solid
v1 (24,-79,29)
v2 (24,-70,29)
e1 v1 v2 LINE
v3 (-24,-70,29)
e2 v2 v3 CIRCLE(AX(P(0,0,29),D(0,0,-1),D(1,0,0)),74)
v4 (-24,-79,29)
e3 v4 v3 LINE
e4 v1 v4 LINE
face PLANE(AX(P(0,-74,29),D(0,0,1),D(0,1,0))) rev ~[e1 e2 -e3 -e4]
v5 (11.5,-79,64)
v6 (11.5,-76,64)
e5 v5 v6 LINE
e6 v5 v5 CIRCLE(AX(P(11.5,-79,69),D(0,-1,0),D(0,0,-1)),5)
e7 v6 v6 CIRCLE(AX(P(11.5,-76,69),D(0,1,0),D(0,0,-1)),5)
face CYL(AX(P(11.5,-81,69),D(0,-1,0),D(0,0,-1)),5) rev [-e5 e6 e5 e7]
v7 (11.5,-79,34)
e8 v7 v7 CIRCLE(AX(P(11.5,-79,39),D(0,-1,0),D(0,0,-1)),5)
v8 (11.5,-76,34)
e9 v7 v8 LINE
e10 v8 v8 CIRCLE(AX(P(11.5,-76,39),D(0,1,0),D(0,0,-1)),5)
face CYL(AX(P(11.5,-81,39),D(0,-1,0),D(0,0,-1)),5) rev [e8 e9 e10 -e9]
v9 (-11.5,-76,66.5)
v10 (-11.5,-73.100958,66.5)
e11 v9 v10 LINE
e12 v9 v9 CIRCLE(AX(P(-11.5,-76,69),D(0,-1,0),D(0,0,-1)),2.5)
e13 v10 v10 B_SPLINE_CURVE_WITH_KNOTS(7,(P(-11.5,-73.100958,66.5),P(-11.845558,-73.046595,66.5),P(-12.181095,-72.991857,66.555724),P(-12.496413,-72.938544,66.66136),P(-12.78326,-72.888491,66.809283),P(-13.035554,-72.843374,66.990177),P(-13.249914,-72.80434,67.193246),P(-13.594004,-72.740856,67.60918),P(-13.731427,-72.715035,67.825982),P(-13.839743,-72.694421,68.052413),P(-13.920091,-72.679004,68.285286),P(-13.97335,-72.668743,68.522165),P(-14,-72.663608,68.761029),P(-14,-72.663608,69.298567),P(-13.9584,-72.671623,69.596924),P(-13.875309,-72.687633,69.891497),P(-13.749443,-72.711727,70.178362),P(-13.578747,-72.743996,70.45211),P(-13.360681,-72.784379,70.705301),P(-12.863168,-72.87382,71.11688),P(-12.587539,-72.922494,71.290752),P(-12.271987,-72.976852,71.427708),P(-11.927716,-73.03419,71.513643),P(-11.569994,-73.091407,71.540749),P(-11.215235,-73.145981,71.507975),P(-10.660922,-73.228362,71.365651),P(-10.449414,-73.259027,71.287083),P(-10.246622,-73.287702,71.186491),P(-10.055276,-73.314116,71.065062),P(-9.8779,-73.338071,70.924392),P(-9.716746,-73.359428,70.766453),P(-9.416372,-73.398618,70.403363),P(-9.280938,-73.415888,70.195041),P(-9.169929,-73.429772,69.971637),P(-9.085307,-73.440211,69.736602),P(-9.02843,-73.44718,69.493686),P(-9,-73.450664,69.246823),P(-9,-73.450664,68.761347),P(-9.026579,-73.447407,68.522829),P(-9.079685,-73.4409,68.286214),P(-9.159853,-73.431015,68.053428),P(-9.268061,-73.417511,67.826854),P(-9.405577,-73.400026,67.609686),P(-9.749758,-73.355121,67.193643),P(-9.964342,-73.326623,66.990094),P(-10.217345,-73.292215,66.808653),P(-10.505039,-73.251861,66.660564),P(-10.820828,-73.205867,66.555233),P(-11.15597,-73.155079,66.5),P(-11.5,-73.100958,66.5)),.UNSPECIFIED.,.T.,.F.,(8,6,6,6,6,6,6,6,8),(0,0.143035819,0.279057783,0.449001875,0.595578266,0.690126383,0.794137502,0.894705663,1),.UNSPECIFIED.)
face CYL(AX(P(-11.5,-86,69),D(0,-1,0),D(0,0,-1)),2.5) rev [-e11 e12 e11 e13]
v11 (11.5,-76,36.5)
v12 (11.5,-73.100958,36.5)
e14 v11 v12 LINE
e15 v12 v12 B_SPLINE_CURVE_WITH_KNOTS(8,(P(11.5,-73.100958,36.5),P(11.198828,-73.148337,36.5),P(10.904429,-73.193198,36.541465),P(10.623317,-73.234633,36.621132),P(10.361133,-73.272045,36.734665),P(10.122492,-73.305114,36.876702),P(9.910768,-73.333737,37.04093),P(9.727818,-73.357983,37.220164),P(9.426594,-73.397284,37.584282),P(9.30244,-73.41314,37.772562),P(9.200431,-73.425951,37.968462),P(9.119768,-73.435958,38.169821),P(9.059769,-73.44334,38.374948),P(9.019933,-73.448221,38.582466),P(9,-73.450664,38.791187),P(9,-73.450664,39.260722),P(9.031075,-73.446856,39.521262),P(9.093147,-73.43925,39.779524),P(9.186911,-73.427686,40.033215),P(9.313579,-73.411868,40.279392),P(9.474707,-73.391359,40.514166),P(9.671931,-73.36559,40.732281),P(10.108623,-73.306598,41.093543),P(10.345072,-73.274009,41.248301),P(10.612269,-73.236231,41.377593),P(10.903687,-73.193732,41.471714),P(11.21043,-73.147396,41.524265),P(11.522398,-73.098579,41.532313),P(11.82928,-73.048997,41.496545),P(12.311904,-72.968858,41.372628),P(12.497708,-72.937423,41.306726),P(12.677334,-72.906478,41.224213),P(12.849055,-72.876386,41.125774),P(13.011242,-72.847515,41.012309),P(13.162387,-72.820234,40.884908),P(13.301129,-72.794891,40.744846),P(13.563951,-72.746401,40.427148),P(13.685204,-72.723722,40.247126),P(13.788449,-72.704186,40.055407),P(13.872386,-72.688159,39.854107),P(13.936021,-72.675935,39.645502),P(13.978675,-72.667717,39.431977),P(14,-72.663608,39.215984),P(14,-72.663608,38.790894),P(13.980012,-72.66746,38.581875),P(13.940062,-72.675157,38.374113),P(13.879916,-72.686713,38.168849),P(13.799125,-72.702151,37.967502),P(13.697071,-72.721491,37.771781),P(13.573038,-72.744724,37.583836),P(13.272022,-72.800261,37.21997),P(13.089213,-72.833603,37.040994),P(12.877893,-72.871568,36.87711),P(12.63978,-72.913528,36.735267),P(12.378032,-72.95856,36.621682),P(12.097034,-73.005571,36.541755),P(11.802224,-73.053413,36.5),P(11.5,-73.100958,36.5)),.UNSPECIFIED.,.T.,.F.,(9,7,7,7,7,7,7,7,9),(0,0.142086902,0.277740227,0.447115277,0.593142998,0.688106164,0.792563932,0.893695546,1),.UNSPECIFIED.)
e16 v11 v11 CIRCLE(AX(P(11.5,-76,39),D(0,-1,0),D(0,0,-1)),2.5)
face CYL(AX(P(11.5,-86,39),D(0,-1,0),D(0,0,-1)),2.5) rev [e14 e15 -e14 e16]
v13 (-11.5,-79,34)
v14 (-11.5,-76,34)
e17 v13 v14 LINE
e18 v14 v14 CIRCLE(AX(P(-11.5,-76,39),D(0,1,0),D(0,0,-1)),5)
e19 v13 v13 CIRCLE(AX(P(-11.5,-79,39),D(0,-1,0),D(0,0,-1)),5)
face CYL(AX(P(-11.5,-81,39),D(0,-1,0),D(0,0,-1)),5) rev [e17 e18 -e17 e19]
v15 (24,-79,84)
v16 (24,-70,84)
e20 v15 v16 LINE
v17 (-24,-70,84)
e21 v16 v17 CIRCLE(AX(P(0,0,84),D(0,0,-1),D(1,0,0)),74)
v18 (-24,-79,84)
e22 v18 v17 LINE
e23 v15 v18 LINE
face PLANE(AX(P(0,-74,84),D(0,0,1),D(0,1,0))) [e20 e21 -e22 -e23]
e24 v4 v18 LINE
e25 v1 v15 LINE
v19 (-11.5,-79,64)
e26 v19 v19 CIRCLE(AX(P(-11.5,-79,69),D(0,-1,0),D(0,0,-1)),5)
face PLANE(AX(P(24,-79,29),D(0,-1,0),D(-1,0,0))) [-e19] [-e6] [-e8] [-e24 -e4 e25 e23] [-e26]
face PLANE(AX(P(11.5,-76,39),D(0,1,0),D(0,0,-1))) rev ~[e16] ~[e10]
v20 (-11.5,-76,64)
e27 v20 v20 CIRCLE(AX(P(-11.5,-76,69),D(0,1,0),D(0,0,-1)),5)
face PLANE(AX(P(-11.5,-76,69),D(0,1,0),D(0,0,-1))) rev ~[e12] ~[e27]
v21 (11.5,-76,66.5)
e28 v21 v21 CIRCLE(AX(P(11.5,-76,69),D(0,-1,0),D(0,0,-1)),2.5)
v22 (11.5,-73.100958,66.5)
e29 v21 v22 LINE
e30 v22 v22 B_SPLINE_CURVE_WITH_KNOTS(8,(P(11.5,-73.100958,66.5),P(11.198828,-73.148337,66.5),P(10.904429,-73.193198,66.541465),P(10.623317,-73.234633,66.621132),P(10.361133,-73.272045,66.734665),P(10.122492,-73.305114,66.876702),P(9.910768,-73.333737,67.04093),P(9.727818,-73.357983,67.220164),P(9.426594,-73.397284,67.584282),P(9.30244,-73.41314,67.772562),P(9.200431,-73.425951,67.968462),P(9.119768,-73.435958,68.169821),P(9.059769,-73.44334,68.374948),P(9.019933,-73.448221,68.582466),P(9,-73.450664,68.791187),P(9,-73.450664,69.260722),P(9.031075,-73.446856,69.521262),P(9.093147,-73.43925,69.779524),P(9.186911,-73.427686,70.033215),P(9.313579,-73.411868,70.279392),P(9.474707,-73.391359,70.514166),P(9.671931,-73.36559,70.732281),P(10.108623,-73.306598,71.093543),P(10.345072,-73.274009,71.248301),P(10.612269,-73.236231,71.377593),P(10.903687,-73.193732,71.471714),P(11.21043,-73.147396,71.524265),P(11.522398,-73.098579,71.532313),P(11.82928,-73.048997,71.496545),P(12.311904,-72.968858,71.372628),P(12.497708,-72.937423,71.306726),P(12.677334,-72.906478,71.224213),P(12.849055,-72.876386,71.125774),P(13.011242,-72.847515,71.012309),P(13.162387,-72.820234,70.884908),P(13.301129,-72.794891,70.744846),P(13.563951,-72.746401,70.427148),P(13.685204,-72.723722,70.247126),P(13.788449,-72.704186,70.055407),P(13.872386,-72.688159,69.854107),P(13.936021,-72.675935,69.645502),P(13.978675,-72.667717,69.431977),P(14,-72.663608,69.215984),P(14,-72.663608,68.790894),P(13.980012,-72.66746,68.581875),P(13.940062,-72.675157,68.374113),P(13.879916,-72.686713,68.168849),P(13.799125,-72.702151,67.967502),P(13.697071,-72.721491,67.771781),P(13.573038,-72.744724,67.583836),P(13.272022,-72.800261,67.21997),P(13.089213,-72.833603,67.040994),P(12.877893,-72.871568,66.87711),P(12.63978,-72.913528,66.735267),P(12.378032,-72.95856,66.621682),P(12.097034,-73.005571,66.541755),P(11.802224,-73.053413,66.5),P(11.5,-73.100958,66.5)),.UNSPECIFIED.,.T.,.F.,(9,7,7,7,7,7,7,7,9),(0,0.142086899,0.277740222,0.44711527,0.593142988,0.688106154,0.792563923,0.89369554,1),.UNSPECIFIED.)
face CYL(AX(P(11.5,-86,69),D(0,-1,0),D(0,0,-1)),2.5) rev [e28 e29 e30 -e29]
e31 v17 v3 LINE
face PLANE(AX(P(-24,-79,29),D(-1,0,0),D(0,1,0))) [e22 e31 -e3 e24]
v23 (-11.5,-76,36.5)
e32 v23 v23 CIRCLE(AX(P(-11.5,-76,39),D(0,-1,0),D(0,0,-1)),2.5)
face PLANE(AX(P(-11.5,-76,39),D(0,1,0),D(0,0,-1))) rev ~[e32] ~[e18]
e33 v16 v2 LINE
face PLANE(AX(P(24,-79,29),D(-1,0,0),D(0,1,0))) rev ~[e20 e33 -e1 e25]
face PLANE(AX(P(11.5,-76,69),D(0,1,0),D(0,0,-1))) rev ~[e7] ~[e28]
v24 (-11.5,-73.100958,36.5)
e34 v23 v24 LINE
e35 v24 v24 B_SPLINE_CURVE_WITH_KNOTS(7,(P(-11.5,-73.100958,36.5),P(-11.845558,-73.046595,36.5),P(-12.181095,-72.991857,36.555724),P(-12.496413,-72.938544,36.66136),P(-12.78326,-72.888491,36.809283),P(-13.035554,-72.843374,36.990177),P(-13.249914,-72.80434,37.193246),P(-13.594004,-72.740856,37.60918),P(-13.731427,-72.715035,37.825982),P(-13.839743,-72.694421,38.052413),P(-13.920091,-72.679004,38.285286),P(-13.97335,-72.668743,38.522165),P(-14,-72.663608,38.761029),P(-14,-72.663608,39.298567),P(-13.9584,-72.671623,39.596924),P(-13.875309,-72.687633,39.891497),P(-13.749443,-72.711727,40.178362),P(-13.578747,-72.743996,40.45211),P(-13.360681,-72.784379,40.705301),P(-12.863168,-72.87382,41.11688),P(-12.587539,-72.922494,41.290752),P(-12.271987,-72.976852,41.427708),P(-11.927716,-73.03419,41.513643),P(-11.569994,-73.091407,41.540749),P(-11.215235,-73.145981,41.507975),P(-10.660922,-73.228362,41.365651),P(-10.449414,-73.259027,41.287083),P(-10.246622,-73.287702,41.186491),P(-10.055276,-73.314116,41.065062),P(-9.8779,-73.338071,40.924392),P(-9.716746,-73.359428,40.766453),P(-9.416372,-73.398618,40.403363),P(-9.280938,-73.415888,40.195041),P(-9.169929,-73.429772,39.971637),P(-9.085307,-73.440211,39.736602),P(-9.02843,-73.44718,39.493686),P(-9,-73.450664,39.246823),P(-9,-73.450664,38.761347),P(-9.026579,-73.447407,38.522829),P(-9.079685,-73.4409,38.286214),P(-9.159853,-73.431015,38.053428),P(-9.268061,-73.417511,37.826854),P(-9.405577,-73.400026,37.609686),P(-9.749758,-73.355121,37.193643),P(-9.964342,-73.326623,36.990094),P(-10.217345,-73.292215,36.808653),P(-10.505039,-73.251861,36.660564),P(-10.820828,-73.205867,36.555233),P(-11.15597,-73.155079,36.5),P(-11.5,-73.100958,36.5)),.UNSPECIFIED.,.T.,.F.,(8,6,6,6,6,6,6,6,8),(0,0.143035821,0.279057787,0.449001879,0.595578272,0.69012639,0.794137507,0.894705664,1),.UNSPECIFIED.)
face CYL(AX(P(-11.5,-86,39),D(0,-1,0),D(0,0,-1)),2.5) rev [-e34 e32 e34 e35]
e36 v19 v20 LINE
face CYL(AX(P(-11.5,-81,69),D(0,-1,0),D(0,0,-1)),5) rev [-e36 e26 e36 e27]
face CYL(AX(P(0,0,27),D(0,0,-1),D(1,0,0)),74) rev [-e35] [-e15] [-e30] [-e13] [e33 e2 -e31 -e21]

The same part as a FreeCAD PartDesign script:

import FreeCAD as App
import Part
import Sketcher

V = App.Vector
Q = App.Units.Quantity

doc = App.newDocument("Part")
body = doc.addObject("PartDesign::Body", "Body")

sketch1 = body.newObject("Sketcher::SketchObject", "Sketch")
sketch1.AttachmentSupport = (doc.getObject("YZ_Plane"), [""])
sketch1.MapMode = "FlatFace"
sketch1.AttachmentOffset = App.Placement(V(0, 0, -86), App.Rotation())
sketch1.addGeometry(Part.Circle(V(-10, 69, 0), V(0, 0, 1), 5), False)
sketch1.addConstraint(Sketcher.Constraint("Diameter", 0, Q("10 mm")))
sketch1.addConstraint(Sketcher.Constraint("DistanceX", 0, 3, -1, 1, Q("10 mm")))
sketch1.addConstraint(Sketcher.Constraint("DistanceY", -1, 1, 0, 3, Q("69 mm")))
pad1 = body.newObject("PartDesign::Pad", "Pad")
pad1.Profile = sketch1
pad1.Length = 5
body2 = doc.addObject("PartDesign::Body", "Body001")
body2.AllowCompound = True

sketch2 = body2.newObject("Sketcher::SketchObject", "Sketch001")
sketch2.AttachmentSupport = (doc.getObject("YZ_Plane001"), [""])
sketch2.MapMode = "FlatFace"
sketch2.AttachmentOffset = App.Placement(V(0, 0, -86), App.Rotation())
sketch2.addGeometry(Part.Circle(V(-10, 39, 0), V(0, 0, 1), 5), False)
sketch2.addConstraint(Sketcher.Constraint("Diameter", 0, Q("10 mm")))
sketch2.addConstraint(Sketcher.Constraint("DistanceX", 0, 3, -1, 1, Q("10 mm")))
sketch2.addConstraint(Sketcher.Constraint("DistanceY", -1, 1, 0, 3, Q("39 mm")))
pad2 = body2.newObject("PartDesign::Pad", "Pad001")
pad2.Profile = sketch2
pad2.Length = 5
doc.recompute()

boolean = body2.newObject("PartDesign::Boolean", "Boolean")
boolean.Type = "Fuse"
boolean.addObjects([body])
body3 = doc.addObject("PartDesign::Body", "Body002")
body3.AllowCompound = True
doc.recompute()

body2.Placement = App.Placement(V(-21.5, 0, 0), App.Rotation(V(0, 0, 1), 90))
boolean2 = body3.newObject("PartDesign::Boolean", "Boolean001")
boolean2.Type = "Fuse"
boolean2.addObjects([body2])
body4 = doc.addObject("PartDesign::Body", "Body003")

sketch3 = body4.newObject("Sketcher::SketchObject", "Sketch002")
sketch3.AttachmentSupport = (doc.getObject("YZ_Plane003"), [""])
sketch3.MapMode = "FlatFace"
sketch3.AttachmentOffset = App.Placement(V(0, 0, -86), App.Rotation())
sketch3.addGeometry(Part.Circle(V(-10, 69, 0), V(0, 0, 1), 5), False)
sketch3.addConstraint(Sketcher.Constraint("Diameter", 0, Q("10 mm")))
sketch3.addConstraint(Sketcher.Constraint("DistanceX", 0, 3, -1, 1, Q("10 mm")))
sketch3.addConstraint(Sketcher.Constraint("DistanceY", -1, 1, 0, 3, Q("69 mm")))
pad3 = body4.newObject("PartDesign::Pad", "Pad002")
pad3.Profile = sketch3
pad3.Length = 5
body5 = doc.addObject("PartDesign::Body", "Body004")
body5.AllowCompound = True

sketch4 = body5.newObject("Sketcher::SketchObject", "Sketch003")
sketch4.AttachmentSupport = (doc.getObject("YZ_Plane004"), [""])
sketch4.MapMode = "FlatFace"
sketch4.AttachmentOffset = App.Placement(V(0, 0, -86), App.Rotation())
sketch4.addGeometry(Part.Circle(V(-10, 39, 0), V(0, 0, 1), 5), False)
sketch4.addConstraint(Sketcher.Constraint("Diameter", 0, Q("10 mm")))
sketch4.addConstraint(Sketcher.Constraint("DistanceX", 0, 3, -1, 1, Q("10 mm")))
sketch4.addConstraint(Sketcher.Constraint("DistanceY", -1, 1, 0, 3, Q("39 mm")))
pad4 = body5.newObject("PartDesign::Pad", "Pad003")
pad4.Profile = sketch4
pad4.Length = 5
doc.recompute()

boolean3 = body5.newObject("PartDesign::Boolean", "Boolean002")
boolean3.Type = "Fuse"
boolean3.addObjects([body4])
body6 = doc.addObject("PartDesign::Body", "Body005")
body6.AllowCompound = True
doc.recompute()

body5.Placement = App.Placement(V(1.5, 0, 0), App.Rotation(V(0, 0, 1), 90))
boolean4 = body6.newObject("PartDesign::Boolean", "Boolean003")
boolean4.Type = "Fuse"
boolean4.addObjects([body5])
doc.recompute()

boolean5 = body6.newObject("PartDesign::Boolean", "Boolean004")
boolean5.Type = "Fuse"
boolean5.addObjects([body3])
body7 = doc.addObject("PartDesign::Body", "Body006")
body7.AllowCompound = True
doc.recompute()

body6.Placement = App.Placement(V(0, 5, 0), App.Rotation(V(0, 0, 1), 0))
boolean6 = body7.newObject("PartDesign::Boolean", "Boolean005")
boolean6.Type = "Fuse"
boolean6.addObjects([body6])
body8 = doc.addObject("PartDesign::Body", "Body007")

sketch5 = body8.newObject("Sketcher::SketchObject", "Sketch004")
sketch5.AttachmentSupport = (doc.getObject("YZ_Plane007"), [""])
sketch5.MapMode = "FlatFace"
sketch5.AttachmentOffset = App.Placement(V(0, 0, -86), App.Rotation())
sketch5.addGeometry(Part.Circle(V(-10, 69, 0), V(0, 0, 1), 2.5), False)
sketch5.addConstraint(Sketcher.Constraint("Diameter", 0, Q("5 mm")))
sketch5.addConstraint(Sketcher.Constraint("DistanceX", 0, 3, -1, 1, Q("10 mm")))
sketch5.addConstraint(Sketcher.Constraint("DistanceY", -1, 1, 0, 3, Q("69 mm")))
pad5 = body8.newObject("PartDesign::Pad", "Pad004")
pad5.Profile = sketch5
pad5.Length = 40
body9 = doc.addObject("PartDesign::Body", "Body008")
body9.AllowCompound = True

sketch6 = body9.newObject("Sketcher::SketchObject", "Sketch005")
sketch6.AttachmentSupport = (doc.getObject("YZ_Plane008"), [""])
sketch6.MapMode = "FlatFace"
sketch6.AttachmentOffset = App.Placement(V(0, 0, -86), App.Rotation())
sketch6.addGeometry(Part.Circle(V(-10, 39, 0), V(0, 0, 1), 2.5), False)
sketch6.addConstraint(Sketcher.Constraint("Diameter", 0, Q("5 mm")))
sketch6.addConstraint(Sketcher.Constraint("DistanceX", 0, 3, -1, 1, Q("10 mm")))
sketch6.addConstraint(Sketcher.Constraint("DistanceY", -1, 1, 0, 3, Q("39 mm")))
pad6 = body9.newObject("PartDesign::Pad", "Pad005")
pad6.Profile = sketch6
pad6.Length = 40
doc.recompute()

boolean7 = body9.newObject("PartDesign::Boolean", "Boolean006")
boolean7.Type = "Fuse"
boolean7.addObjects([body8])
body10 = doc.addObject("PartDesign::Body", "Body009")
body10.AllowCompound = True
doc.recompute()

body9.Placement = App.Placement(V(-21.5, 0, 0), App.Rotation(V(0, 0, 1), 90))
boolean8 = body10.newObject("PartDesign::Boolean", "Boolean007")
boolean8.Type = "Fuse"
boolean8.addObjects([body9])
body11 = doc.addObject("PartDesign::Body", "Body010")

sketch7 = body11.newObject("Sketcher::SketchObject", "Sketch006")
sketch7.AttachmentSupport = (doc.getObject("YZ_Plane010"), [""])
sketch7.MapMode = "FlatFace"
sketch7.AttachmentOffset = App.Placement(V(0, 0, -86), App.Rotation())
sketch7.addGeometry(Part.Circle(V(-10, 69, 0), V(0, 0, 1), 2.5), False)
sketch7.addConstraint(Sketcher.Constraint("Diameter", 0, Q("5 mm")))
sketch7.addConstraint(Sketcher.Constraint("DistanceX", 0, 3, -1, 1, Q("10 mm")))
sketch7.addConstraint(Sketcher.Constraint("DistanceY", -1, 1, 0, 3, Q("69 mm")))
pad7 = body11.newObject("PartDesign::Pad", "Pad006")
pad7.Profile = sketch7
pad7.Length = 40
body12 = doc.addObject("PartDesign::Body", "Body011")
body12.AllowCompound = True

sketch8 = body12.newObject("Sketcher::SketchObject", "Sketch007")
sketch8.AttachmentSupport = (doc.getObject("YZ_Plane011"), [""])
sketch8.MapMode = "FlatFace"
sketch8.AttachmentOffset = App.Placement(V(0, 0, -86), App.Rotation())
sketch8.addGeometry(Part.Circle(V(-10, 39, 0), V(0, 0, 1), 2.5), False)
sketch8.addConstraint(Sketcher.Constraint("Diameter", 0, Q("5 mm")))
sketch8.addConstraint(Sketcher.Constraint("DistanceX", 0, 3, -1, 1, Q("10 mm")))
sketch8.addConstraint(Sketcher.Constraint("DistanceY", -1, 1, 0, 3, Q("39 mm")))
pad8 = body12.newObject("PartDesign::Pad", "Pad007")
pad8.Profile = sketch8
pad8.Length = 40
doc.recompute()

boolean9 = body12.newObject("PartDesign::Boolean", "Boolean008")
boolean9.Type = "Fuse"
boolean9.addObjects([body11])
body13 = doc.addObject("PartDesign::Body", "Body012")
body13.AllowCompound = True
doc.recompute()

body12.Placement = App.Placement(V(1.5, 0, 0), App.Rotation(V(0, 0, 1), 90))
boolean10 = body13.newObject("PartDesign::Boolean", "Boolean009")
boolean10.Type = "Fuse"
boolean10.addObjects([body12])
doc.recompute()

boolean11 = body13.newObject("PartDesign::Boolean", "Boolean010")
boolean11.Type = "Fuse"
boolean11.addObjects([body10])
body14 = doc.addObject("PartDesign::Body", "Body013")

sketch9 = body14.newObject("Sketcher::SketchObject", "Sketch008")
sketch9.AttachmentSupport = (doc.getObject("XY_Plane013"), [""])
sketch9.MapMode = "FlatFace"
sketch9.AttachmentOffset = App.Placement(V(0, 0, 27), App.Rotation())
sketch9.addGeometry(Part.Circle(V(0, 0, 0), V(0, 0, 1), 74), False)
sketch9.addConstraint(Sketcher.Constraint("Coincident", 0, 3, -1, 1))
sketch9.addConstraint(Sketcher.Constraint("Diameter", 0, Q("148 mm")))
pad9 = body14.newObject("PartDesign::Pad", "Pad008")
pad9.Profile = sketch9
pad9.Length = 64
body15 = doc.addObject("PartDesign::Body", "Body014")

sketch10 = body15.newObject("Sketcher::SketchObject", "Sketch009")
sketch10.AttachmentSupport = (doc.getObject("XY_Plane014"), [""])
sketch10.MapMode = "FlatFace"
sketch10.AttachmentOffset = App.Placement(V(0, 0, 29), App.Rotation())
sketch10.addGeometry(Part.LineSegment(V(-24, -79, 0), V(24, -79, 0)), False)
sketch10.addGeometry(Part.LineSegment(V(24, -79, 0), V(24, -69, 0)), False)
sketch10.addGeometry(Part.LineSegment(V(24, -69, 0), V(-24, -69, 0)), False)
sketch10.addGeometry(Part.LineSegment(V(-24, -69, 0), V(-24, -79, 0)), False)
sketch10.addConstraint(Sketcher.Constraint("Coincident", 0, 2, 1, 1))
sketch10.addConstraint(Sketcher.Constraint("Coincident", 1, 2, 2, 1))
sketch10.addConstraint(Sketcher.Constraint("Coincident", 2, 2, 3, 1))
sketch10.addConstraint(Sketcher.Constraint("Coincident", 3, 2, 0, 1))
sketch10.addConstraint(Sketcher.Constraint("Horizontal", 0))
sketch10.addConstraint(Sketcher.Constraint("Vertical", 1))
sketch10.addConstraint(Sketcher.Constraint("Horizontal", 2))
sketch10.addConstraint(Sketcher.Constraint("Vertical", 3))
sketch10.addConstraint(Sketcher.Constraint("DistanceX", 0, 1, 0, 2, Q("48 mm")))
sketch10.addConstraint(Sketcher.Constraint("DistanceY", 1, 1, 1, 2, Q("10 mm")))
sketch10.addConstraint(Sketcher.Constraint("DistanceX", -1, 1, 0, 2, Q("24 mm")))
sketch10.addConstraint(Sketcher.Constraint("DistanceY", 0, 2, -1, 1, Q("79 mm")))
pad10 = body15.newObject("PartDesign::Pad", "Pad009")
pad10.Profile = sketch10
pad10.Length = 55
doc.recompute()

boolean12 = body15.newObject("PartDesign::Boolean", "Boolean011")
boolean12.Type = "Cut"
boolean12.addObjects([body14])
doc.recompute()

boolean13 = body15.newObject("PartDesign::Boolean", "Boolean012")
boolean13.Type = "Cut"
boolean13.addObjects([body13])
doc.recompute()

boolean14 = body15.newObject("PartDesign::Boolean", "Boolean013")
boolean14.Type = "Cut"
boolean14.addObjects([body7])

doc.recompute()
